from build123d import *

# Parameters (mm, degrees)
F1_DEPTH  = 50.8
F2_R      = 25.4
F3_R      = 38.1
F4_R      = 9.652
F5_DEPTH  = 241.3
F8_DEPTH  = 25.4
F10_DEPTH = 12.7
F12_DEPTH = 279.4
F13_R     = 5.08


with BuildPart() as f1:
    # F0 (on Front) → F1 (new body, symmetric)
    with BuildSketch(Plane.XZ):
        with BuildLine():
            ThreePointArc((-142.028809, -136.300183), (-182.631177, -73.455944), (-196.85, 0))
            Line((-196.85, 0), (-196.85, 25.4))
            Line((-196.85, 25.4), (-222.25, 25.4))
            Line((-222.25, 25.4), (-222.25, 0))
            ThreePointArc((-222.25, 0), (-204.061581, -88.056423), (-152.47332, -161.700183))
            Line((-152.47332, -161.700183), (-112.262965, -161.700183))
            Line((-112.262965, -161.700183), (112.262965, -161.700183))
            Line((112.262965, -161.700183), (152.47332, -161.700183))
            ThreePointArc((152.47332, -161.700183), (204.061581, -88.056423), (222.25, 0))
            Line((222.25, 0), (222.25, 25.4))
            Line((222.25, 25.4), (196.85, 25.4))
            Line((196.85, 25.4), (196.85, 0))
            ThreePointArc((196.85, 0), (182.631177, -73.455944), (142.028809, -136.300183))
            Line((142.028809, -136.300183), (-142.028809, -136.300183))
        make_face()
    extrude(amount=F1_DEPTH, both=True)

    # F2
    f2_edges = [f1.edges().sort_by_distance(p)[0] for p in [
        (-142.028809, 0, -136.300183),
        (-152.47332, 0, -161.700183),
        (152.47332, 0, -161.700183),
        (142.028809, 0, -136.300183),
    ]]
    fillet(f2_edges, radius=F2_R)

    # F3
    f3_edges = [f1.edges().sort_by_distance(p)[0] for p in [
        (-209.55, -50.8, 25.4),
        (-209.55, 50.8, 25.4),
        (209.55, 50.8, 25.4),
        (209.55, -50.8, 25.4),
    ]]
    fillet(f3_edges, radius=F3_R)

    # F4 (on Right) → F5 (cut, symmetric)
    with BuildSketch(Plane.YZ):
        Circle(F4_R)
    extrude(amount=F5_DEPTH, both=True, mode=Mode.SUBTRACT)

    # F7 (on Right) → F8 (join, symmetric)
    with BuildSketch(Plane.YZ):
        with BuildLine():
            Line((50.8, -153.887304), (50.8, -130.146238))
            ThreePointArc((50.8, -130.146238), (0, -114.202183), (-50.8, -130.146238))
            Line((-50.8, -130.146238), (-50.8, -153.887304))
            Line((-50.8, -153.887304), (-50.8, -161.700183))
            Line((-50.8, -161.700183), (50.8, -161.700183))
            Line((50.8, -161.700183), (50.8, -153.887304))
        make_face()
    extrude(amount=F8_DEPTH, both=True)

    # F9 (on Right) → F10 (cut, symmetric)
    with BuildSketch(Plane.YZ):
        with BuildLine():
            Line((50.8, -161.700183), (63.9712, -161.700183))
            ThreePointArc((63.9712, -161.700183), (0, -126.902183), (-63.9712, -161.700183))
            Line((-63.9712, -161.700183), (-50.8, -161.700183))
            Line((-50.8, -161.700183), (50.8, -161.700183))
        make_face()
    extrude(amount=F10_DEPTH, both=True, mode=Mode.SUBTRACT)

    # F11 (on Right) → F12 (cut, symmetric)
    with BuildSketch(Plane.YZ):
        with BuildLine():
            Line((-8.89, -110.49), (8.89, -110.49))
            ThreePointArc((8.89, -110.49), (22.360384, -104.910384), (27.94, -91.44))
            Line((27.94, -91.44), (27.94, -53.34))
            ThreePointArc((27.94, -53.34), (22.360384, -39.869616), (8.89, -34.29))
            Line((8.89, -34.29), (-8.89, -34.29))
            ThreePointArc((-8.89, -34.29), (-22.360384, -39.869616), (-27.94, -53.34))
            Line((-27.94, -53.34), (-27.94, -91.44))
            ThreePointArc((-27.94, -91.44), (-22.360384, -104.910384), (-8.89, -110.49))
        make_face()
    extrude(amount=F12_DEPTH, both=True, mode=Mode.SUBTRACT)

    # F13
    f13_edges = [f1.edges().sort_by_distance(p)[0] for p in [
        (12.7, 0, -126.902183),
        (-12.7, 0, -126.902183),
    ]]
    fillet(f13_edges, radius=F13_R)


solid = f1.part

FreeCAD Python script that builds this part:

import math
import FreeCAD as App
import Part
import Sketcher
Q = App.Units.Quantity


def edges_at(feature, points):
    """Names of the edges that pass closest to the given points."""
    edges = feature.Shape.Edges
    near = lambda p: min(range(len(edges)), key=lambda i: edges[i].distToShape(Part.Vertex(*p))[0])
    return sorted({f"Edge{near(p) + 1}" for p in points})

doc = App.newDocument("Part")
body = doc.addObject("PartDesign::Body", "Body")

sketch1 = body.newObject("Sketcher::SketchObject", "Sketch")
sketch1.AttachmentSupport = (doc.getObject("XZ_Plane"), [""])
sketch1.MapMode = "FlatFace"
sketch1.addGeometry(Part.ArcOfCircle(Part.Circle(App.Vector(-0.000001, 0, 0), App.Vector(0, 0, 1), 196.849999), math.radians(180), math.radians(223.820893)), False)
sketch1.addGeometry(Part.LineSegment(App.Vector(-196.85, 0, 0), App.Vector(-196.85, 25.4, 0)), False)
sketch1.addGeometry(Part.LineSegment(App.Vector(-196.85, 25.4, 0), App.Vector(-222.25, 25.4, 0)), False)
sketch1.addGeometry(Part.LineSegment(App.Vector(-222.25, 25.4, 0), App.Vector(-222.25, 0, 0)), False)
sketch1.addGeometry(Part.ArcOfCircle(Part.Circle(App.Vector(0.000001, 0, 0), App.Vector(0, 0, 1), 222.250001), math.radians(-180), math.radians(-133.317782)), False)
sketch1.addGeometry(Part.LineSegment(App.Vector(-152.47332, -161.700183, 0), App.Vector(152.47332, -161.700183, 0)), False)
sketch1.addGeometry(Part.ArcOfCircle(Part.Circle(App.Vector(-0.000001, 0, 0), App.Vector(0, 0, 1), 222.250001), math.radians(-46.682218), math.radians(0)), False)
sketch1.addGeometry(Part.LineSegment(App.Vector(222.25, 0, 0), App.Vector(222.25, 25.4, 0)), False)
sketch1.addGeometry(Part.LineSegment(App.Vector(222.25, 25.4, 0), App.Vector(196.85, 25.4, 0)), False)
sketch1.addGeometry(Part.LineSegment(App.Vector(196.85, 25.4, 0), App.Vector(196.85, 0, 0)), False)
sketch1.addGeometry(Part.ArcOfCircle(Part.Circle(App.Vector(0.000001, 0, 0), App.Vector(0, 0, 1), 196.849999), math.radians(-43.820893), math.radians(0)), False)
sketch1.addGeometry(Part.LineSegment(App.Vector(142.028809, -136.300183, 0), App.Vector(-142.028809, -136.300183, 0)), False)
sketch1.addConstraint(Sketcher.Constraint("Tangent", 0, 1, 1, 1))
sketch1.addConstraint(Sketcher.Constraint("Coincident", 1, 2, 2, 1))
sketch1.addConstraint(Sketcher.Constraint("Coincident", 2, 2, 3, 1))
sketch1.addConstraint(Sketcher.Constraint("Tangent", 3, 2, 4, 1))
sketch1.addConstraint(Sketcher.Constraint("Coincident", 4, 2, 5, 1))
sketch1.addConstraint(Sketcher.Constraint("Coincident", 5, 2, 6, 1))
sketch1.addConstraint(Sketcher.Constraint("Tangent", 6, 2, 7, 1))
sketch1.addConstraint(Sketcher.Constraint("Coincident", 7, 2, 8, 1))
sketch1.addConstraint(Sketcher.Constraint("Coincident", 8, 2, 9, 1))
sketch1.addConstraint(Sketcher.Constraint("Tangent", 9, 2, 10, 2))
sketch1.addConstraint(Sketcher.Constraint("Coincident", 10, 1, 11, 1))
sketch1.addConstraint(Sketcher.Constraint("Coincident", 11, 2, 0, 2))
sketch1.addConstraint(Sketcher.Constraint("Vertical", 1))
sketch1.addConstraint(Sketcher.Constraint("Horizontal", 2))
sketch1.addConstraint(Sketcher.Constraint("Vertical", 3))
sketch1.addConstraint(Sketcher.Constraint("Horizontal", 5))
sketch1.addConstraint(Sketcher.Constraint("Vertical", 7))
sketch1.addConstraint(Sketcher.Constraint("Horizontal", 8))
sketch1.addConstraint(Sketcher.Constraint("Vertical", 9))
sketch1.addConstraint(Sketcher.Constraint("Horizontal", 11))
sketch1.addConstraint(Sketcher.Constraint("Coincident", 0, 3, -1, 1))
sketch1.addConstraint(Sketcher.Constraint("Coincident", 4, 3, -1, 1))
sketch1.addConstraint(Sketcher.Constraint("Coincident", 6, 3, -1, 1))
sketch1.addConstraint(Sketcher.Constraint("Coincident", 10, 3, -1, 1))
sketch1.addConstraint(Sketcher.Constraint("Equal", 4, 6))
sketch1.addConstraint(Sketcher.Constraint("Equal", 0, 10))
sketch1.addConstraint(Sketcher.Constraint("Horizontal", 2, 2, 7, 2))
sketch1.addConstraint(Sketcher.Constraint("Equal", 8, 1))
sketch1.addConstraint(Sketcher.Constraint("DistanceX", 2, 2, 2, 1, Q("1 in")))
sketch1.addConstraint(Sketcher.Constraint("Radius", 0, Q("7.75 in")))
sketch1.addConstraint(Sketcher.Constraint("DistanceY", 5, 2, 10, 1, Q("1 in")))
sketch1.addConstraint(Sketcher.Constraint("DistanceX", 5, 1, 5, 2, Q("304.94664 mm")))
pad1 = body.newObject("PartDesign::Pad", "Pad")
pad1.Profile = sketch1
pad1.Length = Q("4 in")
pad1.Midplane = True
doc.recompute()

fillet = body.newObject("PartDesign::Fillet", "Fillet")
fillet.Base = (pad1, edges_at(pad1, [
    (-142.029, 0, -136.3),
    (-152.473, 0, -161.7),
    (152.473, 0, -161.7),
    (142.029, 0, -136.3),
]))
fillet.Radius = Q("1 in")
doc.recompute()

fillet2 = body.newObject("PartDesign::Fillet", "Fillet001")
fillet2.Base = (fillet, edges_at(fillet, [
    (-209.55, -50.8, 25.4),
    (-209.55, 50.8, 25.4),
    (209.55, 50.8, 25.4),
    (209.55, -50.8, 25.4),
]))
fillet2.Radius = Q("1.5 in")

sketch2 = body.newObject("Sketcher::SketchObject", "Sketch001")
sketch2.AttachmentSupport = (doc.getObject("YZ_Plane"), [""])
sketch2.MapMode = "FlatFace"
sketch2.addGeometry(Part.Circle(App.Vector(0, 0, 0), App.Vector(0, 0, 1), 9.652), False)
sketch2.addConstraint(Sketcher.Constraint("Coincident", 0, 3, -1, 1))
sketch2.addConstraint(Sketcher.Constraint("Diameter", 0, Q("0.76 in")))
pocket1 = body.newObject("PartDesign::Pocket", "Pocket")
pocket1.Profile = sketch2
pocket1.Length = Q("19 in")
pocket1.Midplane = True

sketch3 = body.newObject("Sketcher::SketchObject", "Sketch002")
sketch3.AttachmentSupport = (doc.getObject("YZ_Plane"), [""])
sketch3.MapMode = "FlatFace"
sketch3.addGeometry(Part.ArcOfCircle(Part.Circle(App.Vector(0, -203.10218, 0), App.Vector(0, 0, 1), 88.899997), math.radians(55.150094), math.radians(124.849906)), False)
sketch3.addGeometry(Part.LineSegment(App.Vector(-50.8, -130.146238, 0), App.Vector(-50.8, -161.700183, 0)), False)
sketch3.addGeometry(Part.LineSegment(App.Vector(-50.8, -161.700183, 0), App.Vector(50.8, -161.700183, 0)), False)
sketch3.addGeometry(Part.LineSegment(App.Vector(50.8, -161.700183, 0), App.Vector(50.8, -130.146238, 0)), False)
sketch3.addConstraint(Sketcher.Constraint("Coincident", 0, 2, 1, 1))
sketch3.addConstraint(Sketcher.Constraint("Coincident", 1, 2, 2, 1))
sketch3.addConstraint(Sketcher.Constraint("Coincident", 2, 2, 3, 1))
sketch3.addConstraint(Sketcher.Constraint("Coincident", 3, 2, 0, 1))
sketch3.addConstraint(Sketcher.Constraint("Vertical", 1))
sketch3.addConstraint(Sketcher.Constraint("Horizontal", 2))
sketch3.addConstraint(Sketcher.Constraint("Vertical", 3))
sketch3.addConstraint(Sketcher.Constraint("Symmetric", 0, 2, 3, 2, -2))
sketch3.addConstraint(Sketcher.Constraint("Radius", 0, Q("3.4999999 in")))
sketch3.addConstraint(Sketcher.Constraint("DistanceX", 2, 1, 2, 2, Q("4 in")))
sketch3.addConstraint(Sketcher.Constraint("DistanceY", 0, 3, 1, 2, Q("1.6299999 in")))
sketch3.addConstraint(Sketcher.Constraint("DistanceY", 0, 3, -1, 1, Q("203.10218 mm")))
pad2 = body.newObject("PartDesign::Pad", "Pad001")
pad2.Profile = sketch3
pad2.Length = Q("2 in")
pad2.Midplane = True

sketch4 = body.newObject("Sketcher::SketchObject", "Sketch003")
sketch4.AttachmentSupport = (doc.getObject("YZ_Plane"), [""])
sketch4.MapMode = "FlatFace"
sketch4.addGeometry(Part.ArcOfCircle(Part.Circle(App.Vector(0, -203.102183, 0), App.Vector(0, 0, 1), 76.2), math.radians(32.910843), math.radians(147.089157)), False)
sketch4.addGeometry(Part.LineSegment(App.Vector(-63.9712, -161.700183, 0), App.Vector(63.9712, -161.700183, 0)), False)
sketch4.addConstraint(Sketcher.Constraint("Coincident", 0, 1, 1, 2))
sketch4.addConstraint(Sketcher.Constraint("Coincident", 1, 1, 0, 2))
sketch4.addConstraint(Sketcher.Constraint("Horizontal", 1))
sketch4.addConstraint(Sketcher.Constraint("PointOnObject", 0, 3, -2))
sketch4.addConstraint(Sketcher.Constraint("Radius", 0, Q("3 in")))
sketch4.addConstraint(Sketcher.Constraint("DistanceY", 0, 3, 0, 1, Q("1.63 in")))
sketch4.addConstraint(Sketcher.Constraint("DistanceY", 0, 3, -1, 1, Q("203.102183 mm")))
pocket2 = body.newObject("PartDesign::Pocket", "Pocket001")
pocket2.Profile = sketch4
pocket2.Length = Q("1 in")
pocket2.Midplane = True

sketch5 = body.newObject("Sketcher::SketchObject", "Sketch004")
sketch5.AttachmentSupport = (doc.getObject("YZ_Plane"), [""])
sketch5.MapMode = "FlatFace"
sketch5.addGeometry(Part.LineSegment(App.Vector(-8.89, -110.49, 0), App.Vector(8.89, -110.49, 0)), False)
sketch5.addGeometry(Part.ArcOfCircle(Part.Circle(App.Vector(8.889999, -91.439999, 0), App.Vector(0, 0, 1), 19.050001), math.radians(-89.999998), math.radians(-0.000002)), False)
sketch5.addGeometry(Part.LineSegment(App.Vector(27.94, -91.44, 0), App.Vector(27.94, -53.34, 0)), False)
sketch5.addGeometry(Part.ArcOfCircle(Part.Circle(App.Vector(8.889999, -53.340001, 0), App.Vector(0, 0, 1), 19.050001), math.radians(0.000002), math.radians(89.999998)), False)
sketch5.addGeometry(Part.LineSegment(App.Vector(8.89, -34.29, 0), App.Vector(-8.89, -34.29, 0)), False)
sketch5.addGeometry(Part.ArcOfCircle(Part.Circle(App.Vector(-8.889999, -53.340001, 0), App.Vector(0, 0, 1), 19.050001), math.radians(90.000002), math.radians(179.999998)), False)
sketch5.addGeometry(Part.LineSegment(App.Vector(-27.94, -53.34, 0), App.Vector(-27.94, -91.44, 0)), False)
sketch5.addGeometry(Part.ArcOfCircle(Part.Circle(App.Vector(-8.889999, -91.439999, 0), App.Vector(0, 0, 1), 19.050001), math.radians(-179.999998), math.radians(-90.000002)), False)
sketch5.addConstraint(Sketcher.Constraint("Tangent", 0, 2, 1, 1))
sketch5.addConstraint(Sketcher.Constraint("Tangent", 1, 2, 2, 1))
sketch5.addConstraint(Sketcher.Constraint("Tangent", 2, 2, 3, 1))
sketch5.addConstraint(Sketcher.Constraint("Tangent", 3, 2, 4, 1))
sketch5.addConstraint(Sketcher.Constraint("Tangent", 4, 2, 5, 1))
sketch5.addConstraint(Sketcher.Constraint("Tangent", 5, 2, 6, 1))
sketch5.addConstraint(Sketcher.Constraint("Tangent", 6, 2, 7, 1))
sketch5.addConstraint(Sketcher.Constraint("Tangent", 7, 2, 0, 1))
sketch5.addConstraint(Sketcher.Constraint("Horizontal", 0))
sketch5.addConstraint(Sketcher.Constraint("Vertical", 2))
sketch5.addConstraint(Sketcher.Constraint("Horizontal", 4))
sketch5.addConstraint(Sketcher.Constraint("Vertical", 6))
sketch5.addConstraint(Sketcher.Constraint("Equal", 1, 3))
sketch5.addConstraint(Sketcher.Constraint("Equal", 3, 5))
sketch5.addConstraint(Sketcher.Constraint("Equal", 5, 7))
sketch5.addConstraint(Sketcher.Constraint("Radius", 1, Q("0.75 in")))
sketch5.addConstraint(Sketcher.Constraint("DistanceX", 0, 1, 0, 2, Q("0.7 in")))
sketch5.addConstraint(Sketcher.Constraint("DistanceY", 2, 1, 2, 2, Q("1.5 in")))
sketch5.addConstraint(Sketcher.Constraint("DistanceY", 1, 3, -1, 1, Q("3.6 in")))
sketch5.addConstraint(Sketcher.Constraint("DistanceX", -1, 1, 1, 2, Q("1.1 in")))
pocket3 = body.newObject("PartDesign::Pocket", "Pocket002")
pocket3.Profile = sketch5
pocket3.Length = Q("22 in")
pocket3.Midplane = True
doc.recompute()

fillet3 = body.newObject("PartDesign::Fillet", "Fillet002")
fillet3.Base = (pocket3, edges_at(pocket3, [(12.7, 0, -126.902), (-12.7, 0, -126.902)]))
fillet3.Radius = Q("0.2 in")

doc.recompute()
